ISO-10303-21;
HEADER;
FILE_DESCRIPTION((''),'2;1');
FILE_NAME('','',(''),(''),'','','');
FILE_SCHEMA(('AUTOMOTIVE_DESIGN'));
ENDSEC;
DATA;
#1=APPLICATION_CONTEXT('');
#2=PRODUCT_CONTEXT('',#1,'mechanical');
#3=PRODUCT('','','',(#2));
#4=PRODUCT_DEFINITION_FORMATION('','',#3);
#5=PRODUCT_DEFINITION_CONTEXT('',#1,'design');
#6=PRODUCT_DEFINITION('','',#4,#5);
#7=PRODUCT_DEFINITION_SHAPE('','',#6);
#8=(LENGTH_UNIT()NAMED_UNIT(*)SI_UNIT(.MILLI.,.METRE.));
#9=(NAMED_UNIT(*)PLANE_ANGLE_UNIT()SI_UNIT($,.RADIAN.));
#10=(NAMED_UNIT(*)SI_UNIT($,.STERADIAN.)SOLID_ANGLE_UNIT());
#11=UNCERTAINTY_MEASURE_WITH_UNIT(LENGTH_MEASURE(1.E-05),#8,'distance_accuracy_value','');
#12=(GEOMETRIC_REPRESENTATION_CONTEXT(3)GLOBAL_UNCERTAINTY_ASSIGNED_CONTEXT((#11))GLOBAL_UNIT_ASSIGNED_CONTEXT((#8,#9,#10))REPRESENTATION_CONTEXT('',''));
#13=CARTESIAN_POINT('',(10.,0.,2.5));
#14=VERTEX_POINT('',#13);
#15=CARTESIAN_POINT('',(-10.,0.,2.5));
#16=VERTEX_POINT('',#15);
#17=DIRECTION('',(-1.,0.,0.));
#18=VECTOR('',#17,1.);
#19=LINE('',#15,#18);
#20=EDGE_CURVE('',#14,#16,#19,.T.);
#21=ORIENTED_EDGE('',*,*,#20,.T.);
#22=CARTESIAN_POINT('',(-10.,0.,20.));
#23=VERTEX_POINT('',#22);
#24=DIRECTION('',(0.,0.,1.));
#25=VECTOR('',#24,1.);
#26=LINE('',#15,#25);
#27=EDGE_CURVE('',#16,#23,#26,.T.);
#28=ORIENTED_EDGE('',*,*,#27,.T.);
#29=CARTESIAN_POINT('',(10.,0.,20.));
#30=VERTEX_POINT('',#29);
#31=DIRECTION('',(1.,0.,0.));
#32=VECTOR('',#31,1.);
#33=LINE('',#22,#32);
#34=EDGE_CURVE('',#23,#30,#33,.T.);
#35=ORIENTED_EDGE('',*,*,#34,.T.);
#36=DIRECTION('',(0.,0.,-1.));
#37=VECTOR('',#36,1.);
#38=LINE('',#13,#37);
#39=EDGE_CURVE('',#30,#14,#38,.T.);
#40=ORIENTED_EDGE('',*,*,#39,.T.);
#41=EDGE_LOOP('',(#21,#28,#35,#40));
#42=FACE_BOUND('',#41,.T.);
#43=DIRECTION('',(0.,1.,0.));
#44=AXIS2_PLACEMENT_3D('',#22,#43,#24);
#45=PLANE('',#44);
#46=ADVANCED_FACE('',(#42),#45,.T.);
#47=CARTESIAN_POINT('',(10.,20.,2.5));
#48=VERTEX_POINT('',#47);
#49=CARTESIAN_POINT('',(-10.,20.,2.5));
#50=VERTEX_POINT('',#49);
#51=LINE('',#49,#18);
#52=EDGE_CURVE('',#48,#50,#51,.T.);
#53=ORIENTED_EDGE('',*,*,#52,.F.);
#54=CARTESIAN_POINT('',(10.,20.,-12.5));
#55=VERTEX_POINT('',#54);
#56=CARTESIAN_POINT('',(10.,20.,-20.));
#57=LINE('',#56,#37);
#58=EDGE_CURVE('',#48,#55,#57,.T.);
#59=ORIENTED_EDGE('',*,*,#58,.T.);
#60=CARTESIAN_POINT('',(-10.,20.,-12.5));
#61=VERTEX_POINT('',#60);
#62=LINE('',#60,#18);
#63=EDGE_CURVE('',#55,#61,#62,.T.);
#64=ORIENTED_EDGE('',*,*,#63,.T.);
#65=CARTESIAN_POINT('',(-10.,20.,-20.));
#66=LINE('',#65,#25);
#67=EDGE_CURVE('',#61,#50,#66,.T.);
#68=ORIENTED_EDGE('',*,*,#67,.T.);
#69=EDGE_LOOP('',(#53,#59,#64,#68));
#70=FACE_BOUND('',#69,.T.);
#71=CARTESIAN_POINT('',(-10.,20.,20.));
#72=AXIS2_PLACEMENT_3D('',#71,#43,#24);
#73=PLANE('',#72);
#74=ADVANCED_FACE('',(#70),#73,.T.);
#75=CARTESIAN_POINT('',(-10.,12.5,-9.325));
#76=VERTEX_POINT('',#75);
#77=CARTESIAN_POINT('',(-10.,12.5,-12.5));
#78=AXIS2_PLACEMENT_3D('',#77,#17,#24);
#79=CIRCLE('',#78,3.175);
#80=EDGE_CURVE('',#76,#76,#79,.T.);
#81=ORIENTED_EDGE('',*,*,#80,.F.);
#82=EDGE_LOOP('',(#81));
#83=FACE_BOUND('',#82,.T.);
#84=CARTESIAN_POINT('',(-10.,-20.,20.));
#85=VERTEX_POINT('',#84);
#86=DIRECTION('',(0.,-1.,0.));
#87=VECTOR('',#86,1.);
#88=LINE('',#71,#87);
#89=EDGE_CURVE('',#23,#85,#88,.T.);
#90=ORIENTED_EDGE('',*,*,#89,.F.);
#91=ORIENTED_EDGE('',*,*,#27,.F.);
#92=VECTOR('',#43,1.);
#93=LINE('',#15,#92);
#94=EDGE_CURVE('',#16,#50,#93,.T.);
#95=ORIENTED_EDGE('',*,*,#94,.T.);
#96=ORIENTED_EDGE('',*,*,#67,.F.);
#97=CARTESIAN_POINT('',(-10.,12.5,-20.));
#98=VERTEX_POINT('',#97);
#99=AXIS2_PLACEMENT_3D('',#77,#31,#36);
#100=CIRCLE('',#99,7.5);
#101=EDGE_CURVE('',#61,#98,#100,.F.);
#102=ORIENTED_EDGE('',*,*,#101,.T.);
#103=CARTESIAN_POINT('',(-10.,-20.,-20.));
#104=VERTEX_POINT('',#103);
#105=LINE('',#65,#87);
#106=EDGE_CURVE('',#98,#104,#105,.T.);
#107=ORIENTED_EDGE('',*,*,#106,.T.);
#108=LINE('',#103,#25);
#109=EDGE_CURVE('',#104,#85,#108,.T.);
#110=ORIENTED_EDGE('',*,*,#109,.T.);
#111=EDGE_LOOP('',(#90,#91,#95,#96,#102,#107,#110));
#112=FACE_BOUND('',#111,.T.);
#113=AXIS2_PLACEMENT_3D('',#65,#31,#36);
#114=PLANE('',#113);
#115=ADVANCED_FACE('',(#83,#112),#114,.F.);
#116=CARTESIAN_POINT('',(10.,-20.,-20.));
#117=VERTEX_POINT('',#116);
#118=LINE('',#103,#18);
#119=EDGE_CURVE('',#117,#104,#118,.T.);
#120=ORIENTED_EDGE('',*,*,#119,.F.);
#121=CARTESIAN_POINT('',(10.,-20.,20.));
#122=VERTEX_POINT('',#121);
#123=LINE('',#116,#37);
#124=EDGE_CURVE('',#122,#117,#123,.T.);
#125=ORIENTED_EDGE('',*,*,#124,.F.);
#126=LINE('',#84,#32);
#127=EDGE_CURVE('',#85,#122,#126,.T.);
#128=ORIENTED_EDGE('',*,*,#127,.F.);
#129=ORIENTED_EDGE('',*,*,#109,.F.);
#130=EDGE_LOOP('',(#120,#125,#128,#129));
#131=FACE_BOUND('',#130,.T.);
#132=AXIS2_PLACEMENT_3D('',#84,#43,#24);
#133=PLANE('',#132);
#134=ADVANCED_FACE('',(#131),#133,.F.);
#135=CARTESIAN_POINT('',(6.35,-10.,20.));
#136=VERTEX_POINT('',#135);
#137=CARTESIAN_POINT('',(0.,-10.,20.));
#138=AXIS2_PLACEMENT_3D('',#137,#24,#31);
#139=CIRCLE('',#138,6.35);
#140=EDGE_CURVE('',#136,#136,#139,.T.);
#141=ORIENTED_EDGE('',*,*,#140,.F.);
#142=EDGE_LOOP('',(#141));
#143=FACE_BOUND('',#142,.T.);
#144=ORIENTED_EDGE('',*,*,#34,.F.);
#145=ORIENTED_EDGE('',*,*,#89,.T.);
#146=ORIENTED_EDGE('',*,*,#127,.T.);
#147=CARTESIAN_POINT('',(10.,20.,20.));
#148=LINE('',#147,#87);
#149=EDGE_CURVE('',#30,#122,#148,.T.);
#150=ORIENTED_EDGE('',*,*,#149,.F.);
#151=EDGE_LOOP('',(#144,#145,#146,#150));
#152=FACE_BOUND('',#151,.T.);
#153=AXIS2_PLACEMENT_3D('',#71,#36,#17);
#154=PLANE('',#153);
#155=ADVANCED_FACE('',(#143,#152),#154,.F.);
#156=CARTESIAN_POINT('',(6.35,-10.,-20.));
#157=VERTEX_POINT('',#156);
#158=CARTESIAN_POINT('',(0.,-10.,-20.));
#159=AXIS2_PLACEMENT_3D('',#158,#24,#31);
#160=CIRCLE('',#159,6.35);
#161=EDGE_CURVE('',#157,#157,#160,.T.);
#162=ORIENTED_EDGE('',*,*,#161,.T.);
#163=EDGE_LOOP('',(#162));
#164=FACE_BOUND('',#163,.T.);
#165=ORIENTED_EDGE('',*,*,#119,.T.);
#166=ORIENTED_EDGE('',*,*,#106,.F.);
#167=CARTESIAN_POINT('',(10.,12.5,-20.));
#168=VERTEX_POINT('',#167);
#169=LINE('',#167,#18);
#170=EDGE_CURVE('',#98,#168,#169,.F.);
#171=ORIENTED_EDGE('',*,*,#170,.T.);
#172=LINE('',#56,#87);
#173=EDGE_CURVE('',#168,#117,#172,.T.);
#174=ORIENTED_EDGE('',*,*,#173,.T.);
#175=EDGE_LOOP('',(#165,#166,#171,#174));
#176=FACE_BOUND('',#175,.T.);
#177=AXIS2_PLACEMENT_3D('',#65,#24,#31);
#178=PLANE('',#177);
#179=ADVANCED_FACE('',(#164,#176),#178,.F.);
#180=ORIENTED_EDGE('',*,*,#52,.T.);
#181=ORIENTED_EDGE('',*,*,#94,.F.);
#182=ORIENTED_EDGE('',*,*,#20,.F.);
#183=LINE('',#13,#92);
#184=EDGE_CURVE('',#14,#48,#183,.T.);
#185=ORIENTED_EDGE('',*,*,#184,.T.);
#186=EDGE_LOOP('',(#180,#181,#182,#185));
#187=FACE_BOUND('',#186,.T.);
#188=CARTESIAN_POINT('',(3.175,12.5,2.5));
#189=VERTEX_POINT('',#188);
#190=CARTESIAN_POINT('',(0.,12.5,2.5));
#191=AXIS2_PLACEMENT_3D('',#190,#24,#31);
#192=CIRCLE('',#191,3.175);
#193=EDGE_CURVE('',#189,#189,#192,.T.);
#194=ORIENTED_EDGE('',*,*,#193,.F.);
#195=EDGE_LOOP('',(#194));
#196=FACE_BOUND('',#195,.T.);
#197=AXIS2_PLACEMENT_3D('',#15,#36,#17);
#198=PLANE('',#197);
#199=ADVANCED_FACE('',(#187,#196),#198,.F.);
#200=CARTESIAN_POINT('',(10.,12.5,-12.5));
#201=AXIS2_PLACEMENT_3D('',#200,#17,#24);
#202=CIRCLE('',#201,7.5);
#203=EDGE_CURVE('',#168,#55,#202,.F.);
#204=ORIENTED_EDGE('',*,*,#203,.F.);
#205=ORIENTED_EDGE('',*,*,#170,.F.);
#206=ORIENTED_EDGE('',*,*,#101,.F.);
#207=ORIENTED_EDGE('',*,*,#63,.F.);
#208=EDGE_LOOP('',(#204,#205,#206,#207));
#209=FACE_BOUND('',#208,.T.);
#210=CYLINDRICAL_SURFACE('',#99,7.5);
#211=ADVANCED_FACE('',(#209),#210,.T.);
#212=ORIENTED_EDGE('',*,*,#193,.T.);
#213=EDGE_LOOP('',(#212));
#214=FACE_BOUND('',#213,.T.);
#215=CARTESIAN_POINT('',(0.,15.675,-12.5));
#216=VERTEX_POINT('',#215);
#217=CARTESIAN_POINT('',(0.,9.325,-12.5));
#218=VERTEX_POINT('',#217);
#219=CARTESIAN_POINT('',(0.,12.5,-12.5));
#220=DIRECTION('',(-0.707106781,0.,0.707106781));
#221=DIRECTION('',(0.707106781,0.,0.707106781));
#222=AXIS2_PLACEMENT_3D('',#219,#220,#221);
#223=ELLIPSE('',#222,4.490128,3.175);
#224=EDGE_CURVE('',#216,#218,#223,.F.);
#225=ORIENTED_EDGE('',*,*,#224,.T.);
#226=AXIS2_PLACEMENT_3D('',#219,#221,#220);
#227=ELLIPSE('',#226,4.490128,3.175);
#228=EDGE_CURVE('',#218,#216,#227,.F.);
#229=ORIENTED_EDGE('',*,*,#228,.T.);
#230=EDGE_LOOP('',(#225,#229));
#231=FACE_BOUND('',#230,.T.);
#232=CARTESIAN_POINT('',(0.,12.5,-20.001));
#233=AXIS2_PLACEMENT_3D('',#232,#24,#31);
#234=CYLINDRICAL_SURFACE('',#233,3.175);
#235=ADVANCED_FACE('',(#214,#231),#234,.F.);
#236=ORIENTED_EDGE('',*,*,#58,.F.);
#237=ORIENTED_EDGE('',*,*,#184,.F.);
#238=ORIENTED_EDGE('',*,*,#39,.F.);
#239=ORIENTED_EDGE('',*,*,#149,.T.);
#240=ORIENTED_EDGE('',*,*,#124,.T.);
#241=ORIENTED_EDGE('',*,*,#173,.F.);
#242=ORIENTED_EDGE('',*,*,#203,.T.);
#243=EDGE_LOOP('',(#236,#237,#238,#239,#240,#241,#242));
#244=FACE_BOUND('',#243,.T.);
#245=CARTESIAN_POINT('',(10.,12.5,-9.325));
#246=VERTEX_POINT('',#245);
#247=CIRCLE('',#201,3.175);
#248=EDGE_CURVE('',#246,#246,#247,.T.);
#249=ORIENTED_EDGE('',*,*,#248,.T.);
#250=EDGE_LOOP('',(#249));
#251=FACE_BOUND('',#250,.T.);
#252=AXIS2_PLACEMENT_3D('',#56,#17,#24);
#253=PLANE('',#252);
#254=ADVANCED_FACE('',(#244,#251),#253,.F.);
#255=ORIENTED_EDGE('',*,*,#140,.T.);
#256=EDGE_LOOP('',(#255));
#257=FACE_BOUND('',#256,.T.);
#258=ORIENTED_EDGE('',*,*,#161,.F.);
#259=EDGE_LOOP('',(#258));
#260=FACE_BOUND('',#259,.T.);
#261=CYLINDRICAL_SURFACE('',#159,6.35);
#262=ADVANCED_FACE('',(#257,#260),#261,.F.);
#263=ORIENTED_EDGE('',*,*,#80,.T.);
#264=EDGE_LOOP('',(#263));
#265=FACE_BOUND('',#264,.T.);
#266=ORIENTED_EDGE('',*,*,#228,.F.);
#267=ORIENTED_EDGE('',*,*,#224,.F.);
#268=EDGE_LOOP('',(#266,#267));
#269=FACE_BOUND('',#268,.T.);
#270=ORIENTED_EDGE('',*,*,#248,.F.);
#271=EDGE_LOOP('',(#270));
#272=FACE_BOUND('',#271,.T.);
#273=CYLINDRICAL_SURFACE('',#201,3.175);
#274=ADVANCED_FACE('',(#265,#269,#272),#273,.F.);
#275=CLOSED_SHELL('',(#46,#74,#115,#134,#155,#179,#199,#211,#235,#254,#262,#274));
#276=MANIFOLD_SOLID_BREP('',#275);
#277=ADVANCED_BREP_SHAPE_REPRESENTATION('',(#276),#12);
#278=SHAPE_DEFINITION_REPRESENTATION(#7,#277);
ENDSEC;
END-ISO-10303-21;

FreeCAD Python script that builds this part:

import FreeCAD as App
import Part
import Sketcher
from FreeCAD import Vector
Q = App.Units.Quantity


def edges_at(feature, points):
    """Names of the edges that pass closest to the given points."""
    edges = feature.Shape.Edges
    near = lambda p: min(range(len(edges)), key=lambda i: edges[i].distToShape(Part.Vertex(*p))[0])
    return sorted({f"Edge{near(p) + 1}" for p in points})

doc = App.newDocument("Part")
body = doc.addObject("PartDesign::Body", "Body")

# Sketch on XZ plane
sketch1 = body.newObject("Sketcher::SketchObject", "Sketch")
sketch1.AttachmentSupport = (doc.getObject("XZ_Plane"), [""])
sketch1.MapMode = "FlatFace"
sketch1.addGeometry([
    Part.LineSegment(Vector(-10, -20, 0), Vector(-10, 20, 0)),
    Part.LineSegment(Vector(-10, 20, 0), Vector(10, 20, 0)),
    Part.LineSegment(Vector(10, 20, 0), Vector(10, -20, 0)),
    Part.LineSegment(Vector(10, -20, 0), Vector(-10, -20, 0)),
], False)
sketch1.addConstraint([
    Sketcher.Constraint("Coincident", 0, 2, 1, 1),
    Sketcher.Constraint("Coincident", 1, 2, 2, 1),
    Sketcher.Constraint("Coincident", 2, 2, 3, 1),
    Sketcher.Constraint("Coincident", 3, 2, 0, 1),
    Sketcher.Constraint("Vertical", 0),
    Sketcher.Constraint("Horizontal", 1),
    Sketcher.Constraint("Vertical", 2),
    Sketcher.Constraint("Horizontal", 3),
    Sketcher.Constraint("Symmetric", 0, 2, 2, 2, -1, 1),
    Sketcher.Constraint("DistanceX", 1, 1, 1, 2, Q("20 mm")),
    Sketcher.Constraint("DistanceY", 0, 1, 0, 2, Q("40 mm")),
])
pad1 = body.newObject("PartDesign::Pad", "Pad")
pad1.Profile = sketch1
pad1.Length = 40
pad1.Midplane = True
doc.recompute()

fillet = body.newObject("PartDesign::Fillet", "Fillet")
fillet.Base = (pad1, edges_at(pad1, [(0, 20, -20)]))
fillet.Radius = 7.5

# Sketch on YZ plane
sketch2 = body.newObject("Sketcher::SketchObject", "Sketch001")
sketch2.AttachmentSupport = (doc.getObject("YZ_Plane"), [""])
sketch2.MapMode = "FlatFace"
sketch2.AttachmentOffset = App.Placement(Vector(0, 0, -10), App.Rotation())
sketch2.addGeometry(Part.Circle(Vector(12.5, -12.5, 0), Vector(0, 0, 1), 3.175), False)
sketch2.addConstraint([
    Sketcher.Constraint("Diameter", 0, Q("6.35 mm")),
    Sketcher.Constraint("DistanceX", -1, 1, 0, 3, Q("12.5 mm")),
    Sketcher.Constraint("DistanceY", 0, 3, -1, 1, Q("12.5 mm")),
])
pocket1 = body.newObject("PartDesign::Pocket", "Pocket")
pocket1.Profile = sketch2
pocket1.Type = "ThroughAll"
pocket1.Reversed = True

# Sketch on XZ plane
sketch3 = body.newObject("Sketcher::SketchObject", "Sketch002")
sketch3.AttachmentSupport = (doc.getObject("XZ_Plane"), [""])
sketch3.MapMode = "FlatFace"
sketch3.AttachmentOffset = App.Placement(Vector(0, 0, -20), App.Rotation())
sketch3.addGeometry([
    Part.LineSegment(Vector(-10, 2.5, 0), Vector(-10, 20, 0)),
    Part.LineSegment(Vector(-10, 20, 0), Vector(10, 20, 0)),
    Part.LineSegment(Vector(10, 20, 0), Vector(10, 2.5, 0)),
    Part.LineSegment(Vector(10, 2.5, 0), Vector(-10, 2.5, 0)),
], False)
sketch3.addConstraint([
    Sketcher.Constraint("Coincident", 0, 2, 1, 1),
    Sketcher.Constraint("Coincident", 1, 2, 2, 1),
    Sketcher.Constraint("Coincident", 2, 2, 3, 1),
    Sketcher.Constraint("Coincident", 3, 2, 0, 1),
    Sketcher.Constraint("Vertical", 0),
    Sketcher.Constraint("Horizontal", 1),
    Sketcher.Constraint("Vertical", 2),
    Sketcher.Constraint("Horizontal", 3),
    Sketcher.Constraint("DistanceX", 1, 1, 1, 2, Q("20 mm")),
    Sketcher.Constraint("DistanceY", 0, 1, 0, 2, Q("17.5 mm")),
    Sketcher.Constraint("DistanceX", 0, 2, -1, 1, Q("10 mm")),
    Sketcher.Constraint("DistanceY", -1, 1, 0, 2, Q("20 mm")),
])
pocket2 = body.newObject("PartDesign::Pocket", "Pocket001")
pocket2.Profile = sketch3
pocket2.Length = 20
pocket2.Reversed = True

# Sketch on XY plane
sketch4 = body.newObject("Sketcher::SketchObject", "Sketch003")
sketch4.AttachmentSupport = (doc.getObject("XY_Plane"), [""])
sketch4.MapMode = "FlatFace"
sketch4.AttachmentOffset = App.Placement(Vector(0, 0, 2.5), App.Rotation())
sketch4.addGeometry(Part.Circle(Vector(0, 12.5, 0), Vector(0, 0, 1), 3.175), False)
sketch4.addConstraint([
    Sketcher.Constraint("PointOnObject", 0, 3, -2),
    Sketcher.Constraint("Diameter", 0, Q("6.35 mm")),
    Sketcher.Constraint("DistanceY", -1, 1, 0, 3, Q("12.5 mm")),
])
pocket3 = body.newObject("PartDesign::Pocket", "Pocket002")
pocket3.Profile = sketch4
pocket3.Type = "UpToFirst"

# Sketch on XY plane
sketch5 = body.newObject("Sketcher::SketchObject", "Sketch004")
sketch5.AttachmentSupport = (doc.getObject("XY_Plane"), [""])
sketch5.MapMode = "FlatFace"
sketch5.AttachmentOffset = App.Placement(Vector(0, 0, 20), App.Rotation())
sketch5.addGeometry(Part.Circle(Vector(0, -10, 0), Vector(0, 0, 1), 6.35), False)
sketch5.addConstraint([
    Sketcher.Constraint("PointOnObject", 0, 3, -2),
    Sketcher.Constraint("Diameter", 0, Q("12.7 mm")),
    Sketcher.Constraint("DistanceY", 0, 3, -1, 1, Q("10 mm")),
])
pocket4 = body.newObject("PartDesign::Pocket", "Pocket003")
pocket4.Profile = sketch5
pocket4.Type = "ThroughAll"

doc.recompute()
